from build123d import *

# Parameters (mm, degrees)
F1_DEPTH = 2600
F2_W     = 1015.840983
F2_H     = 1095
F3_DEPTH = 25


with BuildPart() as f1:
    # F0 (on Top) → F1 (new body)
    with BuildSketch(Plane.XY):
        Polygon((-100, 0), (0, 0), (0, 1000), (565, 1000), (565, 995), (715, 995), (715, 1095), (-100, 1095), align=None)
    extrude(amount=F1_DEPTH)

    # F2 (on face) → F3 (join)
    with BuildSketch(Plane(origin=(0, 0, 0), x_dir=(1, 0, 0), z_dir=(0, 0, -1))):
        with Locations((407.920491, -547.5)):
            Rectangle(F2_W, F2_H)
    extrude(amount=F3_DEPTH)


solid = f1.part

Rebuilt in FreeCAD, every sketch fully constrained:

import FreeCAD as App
import Part
import Sketcher

V = App.Vector

doc = App.newDocument("Part")
body = doc.addObject("PartDesign::Body", "Body")

# Sketch on XY plane
sketch1 = body.newObject("Sketcher::SketchObject", "Sketch")
sketch1.AttachmentSupport = (doc.getObject("XY_Plane"), [""])
sketch1.MapMode = "FlatFace"
sketch1.addGeometry([
    Part.LineSegment(V(-100, 0, 0), V(0, 0, 0)),  # 0
    Part.LineSegment(V(0, 0, 0), V(0, 1000, 0)),  # 1
    Part.LineSegment(V(0, 1000, 0), V(565, 1000, 0)),  # 2
    Part.LineSegment(V(565, 1000, 0), V(565, 995, 0)),  # 3
    Part.LineSegment(V(565, 995, 0), V(715, 995, 0)),  # 4
    Part.LineSegment(V(715, 995, 0), V(715, 1095, 0)),  # 5
    Part.LineSegment(V(715, 1095, 0), V(-100, 1095, 0)),  # 6
    Part.LineSegment(V(-100, 1095, 0), V(-100, 0, 0)),  # 7
], False)
sketch1.addConstraint([
    Sketcher.Constraint("Coincident", 0, 2, 1, 1),
    Sketcher.Constraint("Coincident", 1, 2, 2, 1),
    Sketcher.Constraint("Coincident", 2, 2, 3, 1),
    Sketcher.Constraint("Coincident", 3, 2, 4, 1),
    Sketcher.Constraint("Coincident", 4, 2, 5, 1),
    Sketcher.Constraint("Coincident", 5, 2, 6, 1),
    Sketcher.Constraint("Coincident", 6, 2, 7, 1),
    Sketcher.Constraint("Coincident", 7, 2, 0, 1),
    Sketcher.Constraint("Horizontal", 0),
    Sketcher.Constraint("Vertical", 1),
    Sketcher.Constraint("Horizontal", 2),
    Sketcher.Constraint("Vertical", 3),
    Sketcher.Constraint("Horizontal", 4),
    Sketcher.Constraint("Vertical", 5),
    Sketcher.Constraint("Horizontal", 6),
    Sketcher.Constraint("Vertical", 7),
    Sketcher.Constraint("Coincident", 0, 2, -1, 1),
    Sketcher.Constraint("Equal", 0, 5),
    Sketcher.Constraint("DistanceX", 0, 1, 0, 2, 100.0),
    Sketcher.Constraint("DistanceX", 2, 1, 2, 2, 565.0),
    Sketcher.Constraint("DistanceX", 4, 1, 4, 2, 150.0),
    Sketcher.Constraint("DistanceY", 1, 1, 1, 2, 1000.0),
    Sketcher.Constraint("DistanceY", 3, 2, 3, 1, 5.0),
])
pad1 = body.newObject("PartDesign::Pad", "Pad")
pad1.Profile = sketch1
pad1.Length = 2600

# Sketch on XY plane
sketch2 = body.newObject("Sketcher::SketchObject", "Sketch001")
sketch2.AttachmentSupport = (doc.getObject("XY_Plane"), [""])
sketch2.MapMode = "FlatFace"
sketch2.addGeometry([
    Part.LineSegment(V(-100, 0, 0), V(-100, 1095, 0)),
    Part.LineSegment(V(-100, 1095, 0), V(916, 1095, 0)),
    Part.LineSegment(V(916, 1095, 0), V(916, 0, 0)),
    Part.LineSegment(V(916, 0, 0), V(-100, 0, 0)),
], False)
sketch2.addConstraint([
    Sketcher.Constraint("Coincident", 0, 2, 1, 1),
    Sketcher.Constraint("Coincident", 1, 2, 2, 1),
    Sketcher.Constraint("Coincident", 2, 2, 3, 1),
    Sketcher.Constraint("Coincident", 3, 2, 0, 1),
    Sketcher.Constraint("Vertical", 0),
    Sketcher.Constraint("Horizontal", 1),
    Sketcher.Constraint("Vertical", 2),
    Sketcher.Constraint("Horizontal", 3),
    Sketcher.Constraint("PointOnObject", 2, 2, -1),
    Sketcher.Constraint("DistanceY", 0, 1, 0, 2, 1095.0),
    Sketcher.Constraint("DistanceX", 0, 2, -1, 1, 100.0),
    Sketcher.Constraint("DistanceX", 1, 1, 1, 2, 1015.840983),
])
pad2 = body.newObject("PartDesign::Pad", "Pad001")
pad2.Profile = sketch2
pad2.Length = 25
pad2.Reversed = True

doc.recompute()
